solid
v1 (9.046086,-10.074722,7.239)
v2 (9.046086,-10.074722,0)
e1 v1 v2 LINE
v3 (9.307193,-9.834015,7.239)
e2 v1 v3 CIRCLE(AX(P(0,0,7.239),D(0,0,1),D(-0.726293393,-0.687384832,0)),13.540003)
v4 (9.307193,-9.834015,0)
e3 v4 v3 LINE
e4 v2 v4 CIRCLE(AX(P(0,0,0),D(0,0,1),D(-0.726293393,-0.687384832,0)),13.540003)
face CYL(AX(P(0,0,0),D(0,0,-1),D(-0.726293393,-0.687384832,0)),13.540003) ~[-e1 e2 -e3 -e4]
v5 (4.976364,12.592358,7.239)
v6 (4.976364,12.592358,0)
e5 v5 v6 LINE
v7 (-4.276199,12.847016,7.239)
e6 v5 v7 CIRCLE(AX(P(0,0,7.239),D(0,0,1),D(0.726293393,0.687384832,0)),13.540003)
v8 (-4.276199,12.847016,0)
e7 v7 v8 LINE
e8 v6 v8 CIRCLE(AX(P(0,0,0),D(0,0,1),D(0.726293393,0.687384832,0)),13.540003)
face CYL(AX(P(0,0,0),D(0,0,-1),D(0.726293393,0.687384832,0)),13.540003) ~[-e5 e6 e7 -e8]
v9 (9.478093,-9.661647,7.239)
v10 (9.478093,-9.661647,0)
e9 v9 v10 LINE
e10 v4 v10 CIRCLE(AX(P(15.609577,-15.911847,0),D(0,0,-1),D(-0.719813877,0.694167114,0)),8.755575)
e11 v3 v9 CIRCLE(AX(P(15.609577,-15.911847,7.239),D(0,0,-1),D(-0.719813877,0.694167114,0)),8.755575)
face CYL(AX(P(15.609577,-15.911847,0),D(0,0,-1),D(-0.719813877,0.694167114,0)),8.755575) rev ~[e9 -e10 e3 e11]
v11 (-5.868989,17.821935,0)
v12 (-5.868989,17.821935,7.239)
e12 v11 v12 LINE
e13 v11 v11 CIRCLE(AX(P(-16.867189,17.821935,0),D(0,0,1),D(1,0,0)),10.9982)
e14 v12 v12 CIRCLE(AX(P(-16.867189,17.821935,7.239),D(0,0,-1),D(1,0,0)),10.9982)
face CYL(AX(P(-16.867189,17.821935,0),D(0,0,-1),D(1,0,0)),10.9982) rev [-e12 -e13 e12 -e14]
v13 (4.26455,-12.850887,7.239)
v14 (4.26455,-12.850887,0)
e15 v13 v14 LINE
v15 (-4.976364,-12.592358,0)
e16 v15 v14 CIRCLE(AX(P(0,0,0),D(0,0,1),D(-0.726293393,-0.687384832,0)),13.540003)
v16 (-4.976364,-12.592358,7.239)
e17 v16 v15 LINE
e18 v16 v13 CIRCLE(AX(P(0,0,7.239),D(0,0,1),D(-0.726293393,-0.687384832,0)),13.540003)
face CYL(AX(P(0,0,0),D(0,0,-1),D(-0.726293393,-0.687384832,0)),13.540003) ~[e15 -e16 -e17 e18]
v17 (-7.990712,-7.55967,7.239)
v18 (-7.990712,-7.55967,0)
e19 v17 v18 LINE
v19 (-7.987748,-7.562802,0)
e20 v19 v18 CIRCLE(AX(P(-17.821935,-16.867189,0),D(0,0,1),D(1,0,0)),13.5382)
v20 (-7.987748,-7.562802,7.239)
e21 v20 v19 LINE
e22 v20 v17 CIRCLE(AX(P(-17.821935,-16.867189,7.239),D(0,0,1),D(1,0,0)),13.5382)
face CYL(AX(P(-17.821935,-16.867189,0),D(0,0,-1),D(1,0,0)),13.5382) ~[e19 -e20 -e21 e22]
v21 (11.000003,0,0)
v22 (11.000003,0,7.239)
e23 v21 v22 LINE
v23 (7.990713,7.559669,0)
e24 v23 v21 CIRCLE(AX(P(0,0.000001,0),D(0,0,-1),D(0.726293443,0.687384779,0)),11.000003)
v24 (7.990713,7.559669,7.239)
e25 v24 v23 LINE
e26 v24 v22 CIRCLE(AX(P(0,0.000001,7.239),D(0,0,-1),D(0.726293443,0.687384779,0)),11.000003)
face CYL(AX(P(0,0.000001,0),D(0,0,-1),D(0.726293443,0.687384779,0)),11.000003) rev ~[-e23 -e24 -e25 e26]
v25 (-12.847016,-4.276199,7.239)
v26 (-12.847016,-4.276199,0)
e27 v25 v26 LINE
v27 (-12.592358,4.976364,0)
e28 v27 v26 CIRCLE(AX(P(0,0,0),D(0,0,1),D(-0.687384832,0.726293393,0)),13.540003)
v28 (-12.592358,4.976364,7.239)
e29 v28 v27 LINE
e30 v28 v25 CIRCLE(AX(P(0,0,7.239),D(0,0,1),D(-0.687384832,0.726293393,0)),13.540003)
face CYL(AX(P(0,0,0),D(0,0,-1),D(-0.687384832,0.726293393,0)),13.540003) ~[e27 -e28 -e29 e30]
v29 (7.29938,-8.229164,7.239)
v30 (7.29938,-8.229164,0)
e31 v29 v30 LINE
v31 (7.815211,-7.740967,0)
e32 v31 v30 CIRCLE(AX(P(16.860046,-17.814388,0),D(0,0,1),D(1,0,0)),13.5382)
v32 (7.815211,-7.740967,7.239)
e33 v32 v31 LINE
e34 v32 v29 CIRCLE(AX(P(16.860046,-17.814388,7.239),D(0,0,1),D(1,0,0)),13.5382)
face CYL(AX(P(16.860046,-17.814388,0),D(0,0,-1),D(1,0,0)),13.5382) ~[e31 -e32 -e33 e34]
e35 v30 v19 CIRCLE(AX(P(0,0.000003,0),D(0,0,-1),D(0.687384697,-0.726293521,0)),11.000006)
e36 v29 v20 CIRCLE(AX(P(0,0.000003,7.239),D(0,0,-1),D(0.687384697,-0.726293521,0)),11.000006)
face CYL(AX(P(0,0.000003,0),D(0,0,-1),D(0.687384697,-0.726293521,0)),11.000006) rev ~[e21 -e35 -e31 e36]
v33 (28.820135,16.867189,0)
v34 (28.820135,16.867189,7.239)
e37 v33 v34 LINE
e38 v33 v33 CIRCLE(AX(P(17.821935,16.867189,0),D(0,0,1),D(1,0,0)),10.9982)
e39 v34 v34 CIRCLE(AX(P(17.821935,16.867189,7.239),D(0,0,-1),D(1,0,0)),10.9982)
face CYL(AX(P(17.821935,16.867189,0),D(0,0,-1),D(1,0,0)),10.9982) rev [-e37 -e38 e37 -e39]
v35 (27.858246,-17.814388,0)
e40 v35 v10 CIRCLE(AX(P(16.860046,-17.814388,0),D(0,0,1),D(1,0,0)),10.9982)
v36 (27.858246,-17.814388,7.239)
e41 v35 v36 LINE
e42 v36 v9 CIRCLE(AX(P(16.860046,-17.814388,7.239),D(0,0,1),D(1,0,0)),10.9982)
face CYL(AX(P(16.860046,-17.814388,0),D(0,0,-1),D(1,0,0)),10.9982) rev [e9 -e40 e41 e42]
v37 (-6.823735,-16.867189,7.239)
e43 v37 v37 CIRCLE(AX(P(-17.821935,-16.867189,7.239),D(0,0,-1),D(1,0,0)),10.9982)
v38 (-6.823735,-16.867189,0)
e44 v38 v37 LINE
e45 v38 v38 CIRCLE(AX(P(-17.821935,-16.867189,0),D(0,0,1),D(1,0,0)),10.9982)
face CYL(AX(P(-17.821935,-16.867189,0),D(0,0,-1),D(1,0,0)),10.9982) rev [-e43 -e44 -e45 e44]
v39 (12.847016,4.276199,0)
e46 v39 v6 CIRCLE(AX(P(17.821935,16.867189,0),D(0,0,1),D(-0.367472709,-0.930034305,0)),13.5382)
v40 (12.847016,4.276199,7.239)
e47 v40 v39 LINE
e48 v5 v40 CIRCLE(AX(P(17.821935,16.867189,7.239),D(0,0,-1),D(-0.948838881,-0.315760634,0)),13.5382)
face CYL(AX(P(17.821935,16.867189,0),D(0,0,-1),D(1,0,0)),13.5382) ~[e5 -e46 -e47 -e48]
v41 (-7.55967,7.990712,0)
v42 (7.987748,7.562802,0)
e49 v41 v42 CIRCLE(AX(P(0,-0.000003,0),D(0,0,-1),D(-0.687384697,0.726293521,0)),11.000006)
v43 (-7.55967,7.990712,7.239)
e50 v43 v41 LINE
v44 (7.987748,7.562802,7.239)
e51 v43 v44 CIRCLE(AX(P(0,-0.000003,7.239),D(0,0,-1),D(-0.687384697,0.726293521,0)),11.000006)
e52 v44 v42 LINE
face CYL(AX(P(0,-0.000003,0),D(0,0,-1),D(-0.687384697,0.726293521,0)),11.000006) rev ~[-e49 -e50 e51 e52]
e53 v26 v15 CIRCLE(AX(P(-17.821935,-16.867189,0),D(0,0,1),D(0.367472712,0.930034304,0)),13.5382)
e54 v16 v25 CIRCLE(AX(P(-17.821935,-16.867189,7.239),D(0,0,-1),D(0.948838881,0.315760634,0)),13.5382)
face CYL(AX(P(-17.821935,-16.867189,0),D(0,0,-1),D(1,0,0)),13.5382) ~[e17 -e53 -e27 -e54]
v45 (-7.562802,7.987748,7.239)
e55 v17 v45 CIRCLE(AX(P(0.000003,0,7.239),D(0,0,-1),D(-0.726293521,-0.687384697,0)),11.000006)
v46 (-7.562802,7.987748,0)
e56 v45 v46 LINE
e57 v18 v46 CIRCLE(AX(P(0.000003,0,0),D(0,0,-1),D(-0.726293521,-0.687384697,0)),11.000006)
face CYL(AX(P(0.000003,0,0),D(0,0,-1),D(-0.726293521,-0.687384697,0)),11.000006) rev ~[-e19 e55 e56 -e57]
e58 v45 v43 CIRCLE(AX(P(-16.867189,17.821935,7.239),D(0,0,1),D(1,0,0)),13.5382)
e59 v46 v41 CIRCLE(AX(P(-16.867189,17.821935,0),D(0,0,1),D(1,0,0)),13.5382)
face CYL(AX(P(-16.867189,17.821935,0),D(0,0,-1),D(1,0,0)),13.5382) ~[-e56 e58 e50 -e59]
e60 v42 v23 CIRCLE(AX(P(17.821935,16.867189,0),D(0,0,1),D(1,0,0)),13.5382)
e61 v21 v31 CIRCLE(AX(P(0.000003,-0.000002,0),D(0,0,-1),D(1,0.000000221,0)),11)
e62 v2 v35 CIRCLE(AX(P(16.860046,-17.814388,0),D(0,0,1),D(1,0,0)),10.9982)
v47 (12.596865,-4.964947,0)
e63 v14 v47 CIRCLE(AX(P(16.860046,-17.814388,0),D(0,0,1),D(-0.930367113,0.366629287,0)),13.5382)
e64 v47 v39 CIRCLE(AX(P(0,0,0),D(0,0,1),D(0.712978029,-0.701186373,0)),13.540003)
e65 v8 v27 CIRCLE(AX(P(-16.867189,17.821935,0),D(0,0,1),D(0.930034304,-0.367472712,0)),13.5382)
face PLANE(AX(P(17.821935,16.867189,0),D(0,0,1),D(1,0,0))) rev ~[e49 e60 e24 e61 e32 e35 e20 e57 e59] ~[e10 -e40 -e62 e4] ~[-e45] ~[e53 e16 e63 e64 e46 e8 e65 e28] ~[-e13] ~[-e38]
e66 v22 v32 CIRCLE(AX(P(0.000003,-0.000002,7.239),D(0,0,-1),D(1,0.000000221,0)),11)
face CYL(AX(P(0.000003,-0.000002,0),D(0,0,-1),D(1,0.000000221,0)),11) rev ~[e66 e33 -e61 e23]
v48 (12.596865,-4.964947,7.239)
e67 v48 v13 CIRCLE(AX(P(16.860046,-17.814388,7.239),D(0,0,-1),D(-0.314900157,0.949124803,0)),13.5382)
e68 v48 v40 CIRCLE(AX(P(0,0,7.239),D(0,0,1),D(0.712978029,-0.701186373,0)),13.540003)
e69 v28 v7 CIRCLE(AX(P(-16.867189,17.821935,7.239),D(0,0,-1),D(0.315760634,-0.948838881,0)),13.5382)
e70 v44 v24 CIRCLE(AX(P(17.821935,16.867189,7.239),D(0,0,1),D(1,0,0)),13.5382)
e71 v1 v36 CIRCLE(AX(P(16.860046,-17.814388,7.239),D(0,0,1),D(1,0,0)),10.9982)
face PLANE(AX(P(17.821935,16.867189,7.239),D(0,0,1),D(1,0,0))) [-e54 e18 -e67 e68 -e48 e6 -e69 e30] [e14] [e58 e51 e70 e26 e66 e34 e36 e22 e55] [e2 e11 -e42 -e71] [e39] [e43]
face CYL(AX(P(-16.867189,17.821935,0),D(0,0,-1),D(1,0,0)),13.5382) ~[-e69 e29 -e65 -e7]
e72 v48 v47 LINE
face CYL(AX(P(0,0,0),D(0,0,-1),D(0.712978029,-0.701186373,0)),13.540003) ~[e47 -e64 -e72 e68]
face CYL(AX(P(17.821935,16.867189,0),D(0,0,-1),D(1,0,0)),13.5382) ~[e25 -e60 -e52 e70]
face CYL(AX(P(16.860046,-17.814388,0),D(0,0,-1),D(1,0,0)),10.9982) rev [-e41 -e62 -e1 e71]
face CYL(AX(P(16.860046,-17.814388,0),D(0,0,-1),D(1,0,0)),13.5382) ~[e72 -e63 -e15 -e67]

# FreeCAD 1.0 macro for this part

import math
import FreeCAD as App
import Part
import Sketcher
from FreeCAD import Vector
Q = App.Units.Quantity

doc = App.newDocument("Part")
body = doc.addObject("PartDesign::Body", "Body")

# Sketch on XY plane
sketch1 = body.newObject("Sketcher::SketchObject", "Sketch")
sketch1.AttachmentSupport = (doc.getObject("XY_Plane"), [""])
sketch1.MapMode = "FlatFace"
sketch1.addGeometry([
    Part.ArcOfCircle(Part.Circle(Vector(0, 0, 0), Vector(0, 0, 1), 13.54), math.radians(-137), math.radians(-47)),  # 0
    Part.ArcOfCircle(Part.Circle(Vector(15.61, -15.91, 0), Vector(0, 0, 1), 8.76), math.radians(132.86), math.radians(136.04)),  # 1
    Part.ArcOfCircle(Part.Circle(Vector(0, 0, 0), Vector(0, 0, 1), 13.54), math.radians(-45), math.radians(43)),  # 2
    Part.ArcOfCircle(Part.Circle(Vector(0, 0, 0), Vector(0, 0, 1), 13.54), math.radians(43), math.radians(133)),  # 3
    Part.ArcOfCircle(Part.Circle(Vector(0, 0, 0), Vector(0, 0, 1), 13.54), math.radians(133), math.radians(223)),  # 4
    Part.ArcOfCircle(Part.Circle(Vector(0, 0, 0), Vector(0, 0, 1), 11), math.radians(0), math.radians(43)),  # 5
    Part.ArcOfCircle(Part.Circle(Vector(0, 0, 0), Vector(0, 0, 1), 11), math.radians(-47), math.radians(0)),  # 6
    Part.ArcOfCircle(Part.Circle(Vector(0, 0, 0), Vector(0, 0, 1), 11), math.radians(-137), math.radians(-47)),  # 7
    Part.ArcOfCircle(Part.Circle(Vector(0, 0, 0), Vector(0, 0, 1), 11), math.radians(133), math.radians(223)),  # 8
    Part.ArcOfCircle(Part.Circle(Vector(0, 0, 0), Vector(0, 0, 1), 11), math.radians(43), math.radians(133)),  # 9
], False)
sketch1.addConstraint([
    Sketcher.Constraint("Coincident", 0, 2, 1, 2),
    Sketcher.Constraint("Coincident", 1, 1, 2, 1),
    Sketcher.Constraint("Tangent", 2, 2, 3, 1),
    Sketcher.Constraint("Tangent", 3, 2, 4, 1),
    Sketcher.Constraint("Tangent", 4, 2, 0, 1),
    Sketcher.Constraint("Tangent", 5, 1, 6, 2),
    Sketcher.Constraint("Tangent", 6, 1, 7, 2),
    Sketcher.Constraint("Tangent", 7, 1, 8, 2),
    Sketcher.Constraint("Tangent", 8, 1, 9, 2),
    Sketcher.Constraint("Tangent", 9, 1, 5, 2),
    Sketcher.Constraint("Coincident", 0, 3, -1, 1),
    Sketcher.Constraint("Coincident", 2, 3, -1, 1),
    Sketcher.Constraint("Coincident", 5, 3, -1, 1),
    Sketcher.Constraint("Coincident", 7, 3, -1, 1),
    Sketcher.Constraint("Equal", 0, 2),
    Sketcher.Constraint("PointOnObject", 5, 1, -1),
    Sketcher.Constraint("Radius", 6, 11.0),
    Sketcher.Constraint("Radius", 0, 13.540003),
    Sketcher.Constraint("Radius", 1, 8.755575),
    Sketcher.Constraint("DistanceY", 6, 1, -1, 1, 7.98923),
    Sketcher.Constraint("DistanceX", 7, 1, -1, 1, 7.98923),
    Sketcher.Constraint("DistanceY", -1, 1, 8, 1, 7.98923),
    Sketcher.Constraint("DistanceX", -1, 1, 9, 1, 7.98923),
    Sketcher.Constraint("DistanceY", 1, 3, 5, 3, 15.911848),
    Sketcher.Constraint("DistanceY", 1, 3, 0, 2, 6.077832),
    Sketcher.Constraint("DistanceY", 7, 3, 2, 2, 9.30719),
    Sketcher.Constraint("DistanceY", 7, 3, 3, 2, 9.834012),
    Sketcher.Constraint("DistanceY", 4, 2, 9, 3, 9.30719),
])
pad1 = body.newObject("PartDesign::Pad", "Pad")
pad1.Profile = sketch1
pad1.Length = Q("0.285 in")

# Sketch on XY plane
sketch2 = body.newObject("Sketcher::SketchObject", "Sketch001")
sketch2.AttachmentSupport = (doc.getObject("XY_Plane"), [""])
sketch2.MapMode = "FlatFace"
sketch2.addGeometry([
    Part.Circle(Vector(17, -18, 0), Vector(0, 0, 1), 14),
    Part.Circle(Vector(17, -18, 0), Vector(0, 0, 1), 11),
], False)
sketch2.addConstraint([
    Sketcher.Constraint("Coincident", 1, 3, 0, 3),
    Sketcher.Constraint("Diameter", 0, Q("1.066 in")),
    Sketcher.Constraint("Diameter", 1, Q("0.866 in")),
    Sketcher.Constraint("DistanceY", 0, 3, -1, 1, 17.814388),
    Sketcher.Constraint("DistanceX", -1, 1, 0, 3, 16.860046),
])
pad2 = body.newObject("PartDesign::Pad", "Pad001")
pad2.Profile = sketch2
pad2.Length = Q("0.285 in")

# Sketch on XY plane
sketch3 = body.newObject("Sketcher::SketchObject", "Sketch002")
sketch3.AttachmentSupport = (doc.getObject("XY_Plane"), [""])
sketch3.MapMode = "FlatFace"
sketch3.addGeometry([
    Part.Circle(Vector(-18, -17, 0), Vector(0, 0, 1), 14),
    Part.Circle(Vector(-18, -17, 0), Vector(0, 0, 1), 11),
], False)
sketch3.addConstraint([
    Sketcher.Constraint("Coincident", 1, 3, 0, 3),
    Sketcher.Constraint("Diameter", 0, Q("1.066 in")),
    Sketcher.Constraint("Diameter", 1, Q("0.866 in")),
    Sketcher.Constraint("DistanceY", 0, 3, -1, 1, 16.867189),
    Sketcher.Constraint("DistanceX", 0, 3, -1, 1, 17.821935),
])
pad3 = body.newObject("PartDesign::Pad", "Pad002")
pad3.Profile = sketch3
pad3.Length = Q("0.285 in")

# Sketch on XY plane
sketch4 = body.newObject("Sketcher::SketchObject", "Sketch003")
sketch4.AttachmentSupport = (doc.getObject("XY_Plane"), [""])
sketch4.MapMode = "FlatFace"
sketch4.addGeometry([
    Part.Circle(Vector(-17, 18, 0), Vector(0, 0, 1), 14),
    Part.Circle(Vector(-17, 18, 0), Vector(0, 0, 1), 11),
], False)
sketch4.addConstraint([
    Sketcher.Constraint("Coincident", 1, 3, 0, 3),
    Sketcher.Constraint("Diameter", 0, Q("1.066 in")),
    Sketcher.Constraint("Diameter", 1, Q("0.866 in")),
    Sketcher.Constraint("DistanceX", 0, 3, -1, 1, 16.867189),
    Sketcher.Constraint("DistanceY", -1, 1, 0, 3, 17.821935),
])
pad4 = body.newObject("PartDesign::Pad", "Pad003")
pad4.Profile = sketch4
pad4.Length = Q("0.285 in")

# Sketch on XY plane
sketch5 = body.newObject("Sketcher::SketchObject", "Sketch004")
sketch5.AttachmentSupport = (doc.getObject("XY_Plane"), [""])
sketch5.MapMode = "FlatFace"
sketch5.addGeometry([
    Part.Circle(Vector(18, 17, 0), Vector(0, 0, 1), 14),
    Part.Circle(Vector(18, 17, 0), Vector(0, 0, 1), 11),
], False)
sketch5.addConstraint([
    Sketcher.Constraint("Coincident", 1, 3, 0, 3),
    Sketcher.Constraint("Diameter", 0, Q("1.066 in")),
    Sketcher.Constraint("Diameter", 1, Q("0.866 in")),
    Sketcher.Constraint("DistanceY", -1, 1, 0, 3, 16.867189),
    Sketcher.Constraint("DistanceX", -1, 1, 0, 3, 17.821935),
])
pad5 = body.newObject("PartDesign::Pad", "Pad004")
pad5.Profile = sketch5
pad5.Length = Q("0.285 in")

doc.recompute()
